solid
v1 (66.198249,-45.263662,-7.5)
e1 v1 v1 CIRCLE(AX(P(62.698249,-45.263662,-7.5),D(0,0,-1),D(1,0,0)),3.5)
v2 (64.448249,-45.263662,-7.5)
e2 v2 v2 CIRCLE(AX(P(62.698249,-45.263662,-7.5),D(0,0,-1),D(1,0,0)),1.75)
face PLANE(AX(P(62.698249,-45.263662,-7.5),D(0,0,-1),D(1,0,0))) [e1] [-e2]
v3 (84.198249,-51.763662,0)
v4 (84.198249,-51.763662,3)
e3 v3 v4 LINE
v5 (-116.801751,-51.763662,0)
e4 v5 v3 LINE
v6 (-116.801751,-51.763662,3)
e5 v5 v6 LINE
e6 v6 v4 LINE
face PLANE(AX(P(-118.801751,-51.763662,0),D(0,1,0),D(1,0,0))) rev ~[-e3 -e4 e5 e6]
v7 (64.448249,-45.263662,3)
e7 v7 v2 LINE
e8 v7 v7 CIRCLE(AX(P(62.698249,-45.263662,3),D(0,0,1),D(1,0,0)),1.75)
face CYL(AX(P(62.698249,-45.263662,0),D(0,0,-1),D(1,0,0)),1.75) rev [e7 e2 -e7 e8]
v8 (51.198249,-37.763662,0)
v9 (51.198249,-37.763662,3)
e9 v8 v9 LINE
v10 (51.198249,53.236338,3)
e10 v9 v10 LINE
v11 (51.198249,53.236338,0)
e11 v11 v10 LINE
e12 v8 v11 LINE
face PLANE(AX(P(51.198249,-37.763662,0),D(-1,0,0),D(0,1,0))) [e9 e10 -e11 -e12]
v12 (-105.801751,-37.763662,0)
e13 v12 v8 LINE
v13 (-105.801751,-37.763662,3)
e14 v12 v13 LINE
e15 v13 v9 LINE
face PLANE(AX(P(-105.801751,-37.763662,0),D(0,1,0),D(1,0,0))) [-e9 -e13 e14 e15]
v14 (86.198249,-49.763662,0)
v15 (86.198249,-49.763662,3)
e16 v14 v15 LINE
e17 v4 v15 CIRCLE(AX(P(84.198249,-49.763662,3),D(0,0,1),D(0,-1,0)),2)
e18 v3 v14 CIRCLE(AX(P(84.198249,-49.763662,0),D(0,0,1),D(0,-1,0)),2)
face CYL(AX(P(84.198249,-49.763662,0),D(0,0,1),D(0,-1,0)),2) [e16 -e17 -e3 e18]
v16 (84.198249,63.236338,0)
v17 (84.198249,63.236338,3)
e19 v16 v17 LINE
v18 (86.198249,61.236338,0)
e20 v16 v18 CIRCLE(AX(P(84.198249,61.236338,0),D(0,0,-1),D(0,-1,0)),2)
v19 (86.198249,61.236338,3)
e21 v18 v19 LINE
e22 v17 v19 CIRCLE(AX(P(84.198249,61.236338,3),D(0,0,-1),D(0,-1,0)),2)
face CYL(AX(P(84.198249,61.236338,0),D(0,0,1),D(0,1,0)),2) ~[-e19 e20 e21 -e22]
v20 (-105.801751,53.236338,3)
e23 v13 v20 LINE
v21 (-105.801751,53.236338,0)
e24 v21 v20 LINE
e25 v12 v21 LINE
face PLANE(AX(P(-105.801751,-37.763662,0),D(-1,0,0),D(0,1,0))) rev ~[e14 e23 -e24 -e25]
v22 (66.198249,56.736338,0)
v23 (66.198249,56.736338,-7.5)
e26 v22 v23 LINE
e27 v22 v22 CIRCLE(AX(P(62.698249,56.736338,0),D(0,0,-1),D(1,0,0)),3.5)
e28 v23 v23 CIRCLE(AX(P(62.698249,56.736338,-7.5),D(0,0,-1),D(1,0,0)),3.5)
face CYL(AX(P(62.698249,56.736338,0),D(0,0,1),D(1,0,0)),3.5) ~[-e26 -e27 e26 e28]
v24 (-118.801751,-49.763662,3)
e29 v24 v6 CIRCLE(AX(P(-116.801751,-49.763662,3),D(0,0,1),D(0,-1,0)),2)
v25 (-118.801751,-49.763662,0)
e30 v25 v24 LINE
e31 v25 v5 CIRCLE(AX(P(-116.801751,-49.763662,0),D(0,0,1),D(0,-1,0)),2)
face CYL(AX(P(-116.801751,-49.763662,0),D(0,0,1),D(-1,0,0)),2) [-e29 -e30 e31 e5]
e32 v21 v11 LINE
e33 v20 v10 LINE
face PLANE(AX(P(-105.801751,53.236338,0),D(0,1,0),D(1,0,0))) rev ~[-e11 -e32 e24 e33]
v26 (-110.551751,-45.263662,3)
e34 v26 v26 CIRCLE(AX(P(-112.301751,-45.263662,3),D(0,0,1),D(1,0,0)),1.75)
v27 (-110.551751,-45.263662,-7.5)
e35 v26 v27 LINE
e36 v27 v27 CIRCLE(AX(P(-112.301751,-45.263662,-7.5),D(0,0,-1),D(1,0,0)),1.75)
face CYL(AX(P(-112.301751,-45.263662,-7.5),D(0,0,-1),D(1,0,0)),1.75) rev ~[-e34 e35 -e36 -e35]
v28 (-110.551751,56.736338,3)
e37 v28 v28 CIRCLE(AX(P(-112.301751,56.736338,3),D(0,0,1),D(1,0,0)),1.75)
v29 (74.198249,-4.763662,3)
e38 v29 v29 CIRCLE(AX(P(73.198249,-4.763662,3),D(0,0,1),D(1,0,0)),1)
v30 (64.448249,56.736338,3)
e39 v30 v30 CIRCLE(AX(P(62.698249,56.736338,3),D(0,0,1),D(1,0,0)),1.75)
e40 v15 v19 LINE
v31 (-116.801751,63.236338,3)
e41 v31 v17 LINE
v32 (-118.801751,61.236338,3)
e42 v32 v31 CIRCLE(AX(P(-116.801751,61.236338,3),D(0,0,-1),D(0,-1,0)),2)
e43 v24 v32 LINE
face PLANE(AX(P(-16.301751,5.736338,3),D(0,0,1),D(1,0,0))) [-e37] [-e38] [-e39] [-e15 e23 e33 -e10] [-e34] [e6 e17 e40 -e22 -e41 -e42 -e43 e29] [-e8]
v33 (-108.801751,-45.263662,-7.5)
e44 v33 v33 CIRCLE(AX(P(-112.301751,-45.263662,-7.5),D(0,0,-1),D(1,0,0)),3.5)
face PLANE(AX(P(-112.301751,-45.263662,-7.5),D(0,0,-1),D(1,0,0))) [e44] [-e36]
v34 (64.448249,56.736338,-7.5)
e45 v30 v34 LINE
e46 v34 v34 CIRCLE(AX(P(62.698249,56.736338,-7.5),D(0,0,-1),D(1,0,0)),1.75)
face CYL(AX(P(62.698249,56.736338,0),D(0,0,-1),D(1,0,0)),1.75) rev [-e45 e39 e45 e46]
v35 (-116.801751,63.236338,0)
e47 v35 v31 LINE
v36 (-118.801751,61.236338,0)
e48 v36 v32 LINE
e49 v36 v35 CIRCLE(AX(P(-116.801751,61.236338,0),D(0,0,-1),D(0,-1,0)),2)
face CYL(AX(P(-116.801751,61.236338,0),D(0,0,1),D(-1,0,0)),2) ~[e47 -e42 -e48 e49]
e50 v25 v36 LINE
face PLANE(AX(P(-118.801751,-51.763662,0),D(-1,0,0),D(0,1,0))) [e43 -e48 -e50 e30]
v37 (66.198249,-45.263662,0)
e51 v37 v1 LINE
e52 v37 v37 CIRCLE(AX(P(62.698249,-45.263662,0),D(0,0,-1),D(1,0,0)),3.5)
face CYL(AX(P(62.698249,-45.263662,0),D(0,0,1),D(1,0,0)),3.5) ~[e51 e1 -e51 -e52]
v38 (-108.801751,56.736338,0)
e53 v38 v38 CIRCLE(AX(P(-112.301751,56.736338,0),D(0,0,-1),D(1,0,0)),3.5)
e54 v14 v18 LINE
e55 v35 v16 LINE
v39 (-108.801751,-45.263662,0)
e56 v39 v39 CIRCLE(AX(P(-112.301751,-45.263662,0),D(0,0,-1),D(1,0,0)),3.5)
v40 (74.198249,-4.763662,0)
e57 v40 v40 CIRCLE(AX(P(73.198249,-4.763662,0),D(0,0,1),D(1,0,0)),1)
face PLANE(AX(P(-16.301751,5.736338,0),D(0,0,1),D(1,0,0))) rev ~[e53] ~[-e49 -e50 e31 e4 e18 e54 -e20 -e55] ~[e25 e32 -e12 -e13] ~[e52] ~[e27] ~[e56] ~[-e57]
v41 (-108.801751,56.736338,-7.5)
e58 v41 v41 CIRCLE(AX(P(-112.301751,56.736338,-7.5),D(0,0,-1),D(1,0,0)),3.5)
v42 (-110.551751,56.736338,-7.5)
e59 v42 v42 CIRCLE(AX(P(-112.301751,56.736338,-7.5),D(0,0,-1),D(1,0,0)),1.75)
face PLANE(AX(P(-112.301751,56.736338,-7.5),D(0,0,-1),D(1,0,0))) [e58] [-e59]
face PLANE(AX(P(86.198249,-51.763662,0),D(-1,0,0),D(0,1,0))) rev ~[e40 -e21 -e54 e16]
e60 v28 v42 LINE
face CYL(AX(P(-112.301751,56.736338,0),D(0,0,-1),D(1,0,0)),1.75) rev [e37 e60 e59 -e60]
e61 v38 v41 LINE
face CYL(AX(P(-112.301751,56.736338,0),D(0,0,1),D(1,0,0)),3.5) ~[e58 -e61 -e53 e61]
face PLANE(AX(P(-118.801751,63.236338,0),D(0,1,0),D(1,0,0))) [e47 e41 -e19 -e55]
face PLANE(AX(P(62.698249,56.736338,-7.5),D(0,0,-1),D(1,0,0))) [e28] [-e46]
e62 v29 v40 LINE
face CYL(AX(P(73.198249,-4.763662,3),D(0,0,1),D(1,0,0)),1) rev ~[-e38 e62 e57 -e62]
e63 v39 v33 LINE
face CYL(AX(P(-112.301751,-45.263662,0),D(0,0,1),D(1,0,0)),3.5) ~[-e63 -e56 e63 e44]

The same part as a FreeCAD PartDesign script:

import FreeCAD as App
import Part
import Sketcher
from FreeCAD import Vector
Q = App.Units.Quantity


def edges_at(feature, points):
    """Names of the edges that pass closest to the given points."""
    edges = feature.Shape.Edges
    near = lambda p: min(range(len(edges)), key=lambda i: edges[i].distToShape(Part.Vertex(*p))[0])
    return sorted({f"Edge{near(p) + 1}" for p in points})

doc = App.newDocument("Part")
body = doc.addObject("PartDesign::Body", "Body")

# Sketch on XY plane
sketch1 = body.newObject("Sketcher::SketchObject", "Sketch")
sketch1.AttachmentSupport = (doc.getObject("XY_Plane"), [""])
sketch1.MapMode = "FlatFace"
sketch1.addGeometry([
    Part.LineSegment(Vector(-118.801751, 63.236338, 0), Vector(-118.801751, -51.763662, 0)),  # 0
    Part.LineSegment(Vector(-118.801751, -51.763662, 0), Vector(86.198249, -51.763662, 0)),  # 1
    Part.LineSegment(Vector(86.198249, -51.763662, 0), Vector(86.198249, 63.236338, 0)),  # 2
    Part.LineSegment(Vector(86.198249, 63.236338, 0), Vector(-118.801751, 63.236338, 0)),  # 3
    Part.Circle(Vector(-112.301751, -45.263662, 0), Vector(0, 0, 1), 1.75),  # 4
    Part.Circle(Vector(62.698249, -45.263662, 0), Vector(0, 0, 1), 1.75),  # 5
    Part.LineSegment(Vector(51.198249, -37.763662, 0), Vector(-105.801751, -37.763662, 0)),  # 6
    Part.LineSegment(Vector(-105.801751, -37.763662, 0), Vector(-105.801751, 53.236338, 0)),  # 7
    Part.LineSegment(Vector(-105.801751, 53.236338, 0), Vector(51.198249, 53.236338, 0)),  # 8
    Part.LineSegment(Vector(51.198249, 53.236338, 0), Vector(51.198249, -37.763662, 0)),  # 9
    Part.Circle(Vector(-112.301751, 56.736338, 0), Vector(0, 0, 1), 1.75),  # 10
    Part.Circle(Vector(62.698249, 56.736338, 0), Vector(0, 0, 1), 1.75),  # 11
], False)
sketch1.addConstraint([
    Sketcher.Constraint("Coincident", 0, 2, 1, 1),
    Sketcher.Constraint("Coincident", 1, 2, 2, 1),
    Sketcher.Constraint("Coincident", 2, 2, 3, 1),
    Sketcher.Constraint("Coincident", 3, 2, 0, 1),
    Sketcher.Constraint("Coincident", 6, 2, 7, 1),
    Sketcher.Constraint("Coincident", 7, 2, 8, 1),
    Sketcher.Constraint("Coincident", 8, 2, 9, 1),
    Sketcher.Constraint("Coincident", 9, 2, 6, 1),
    Sketcher.Constraint("Vertical", 0),
    Sketcher.Constraint("Horizontal", 1),
    Sketcher.Constraint("Vertical", 2),
    Sketcher.Constraint("Horizontal", 3),
    Sketcher.Constraint("Horizontal", 6),
    Sketcher.Constraint("Vertical", 7),
    Sketcher.Constraint("Horizontal", 8),
    Sketcher.Constraint("Vertical", 9),
    Sketcher.Constraint("Equal", 4, 5),
    Sketcher.Constraint("Equal", 5, 10),
    Sketcher.Constraint("Equal", 10, 11),
    Sketcher.Constraint("Horizontal", 4, 3, 5, 3),
    Sketcher.Constraint("Horizontal", 10, 3, 11, 3),
    Sketcher.Constraint("Vertical", 4, 3, 10, 3),
    Sketcher.Constraint("Vertical", 5, 3, 11, 3),
    Sketcher.Constraint("Diameter", 4, Q("3.5 mm")),
    Sketcher.Constraint("DistanceX", 1, 1, 1, 2, Q("205 mm")),
    Sketcher.Constraint("DistanceX", 6, 2, 6, 1, Q("157 mm")),
    Sketcher.Constraint("DistanceY", 0, 2, 0, 1, Q("115 mm")),
    Sketcher.Constraint("DistanceY", 7, 1, 7, 2, Q("91 mm")),
    Sketcher.Constraint("DistanceX", 4, 3, 5, 3, Q("175 mm")),
    Sketcher.Constraint("DistanceY", 4, 3, 10, 3, Q("102 mm")),
    Sketcher.Constraint("DistanceX", 0, 2, 6, 2, Q("13 mm")),
    Sketcher.Constraint("DistanceY", 0, 2, 6, 2, Q("14 mm")),
    Sketcher.Constraint("DistanceX", 0, 2, 4, 3, Q("6.5 mm")),
    Sketcher.Constraint("DistanceY", 0, 2, 4, 3, Q("6.5 mm")),
    Sketcher.Constraint("DistanceX", 4, 3, -1, 1, Q("112.301751 mm")),
    Sketcher.Constraint("DistanceY", 4, 3, -1, 1, Q("45.263662 mm")),
])
pad1 = body.newObject("PartDesign::Pad", "Pad")
pad1.Profile = sketch1
pad1.Length = 3
doc.recompute()

fillet = body.newObject("PartDesign::Fillet", "Fillet")
fillet.Base = (pad1, edges_at(pad1, [
    (-118.802, -51.764, 1.5),
    (-118.802, 63.236, 1.5),
    (86.198, -51.764, 1.5),
    (86.198, 63.236, 1.5),
]))
fillet.Radius = 2

# Sketch on XY plane
sketch2 = body.newObject("Sketcher::SketchObject", "Sketch001")
sketch2.AttachmentSupport = (doc.getObject("XY_Plane"), [""])
sketch2.MapMode = "FlatFace"
sketch2.addGeometry([
    Part.LineSegment(Vector(-118.801751, 63.236338, 0), Vector(-118.801751, -51.763662, 0)),  # 0
    Part.LineSegment(Vector(-118.801751, -51.763662, 0), Vector(86.198249, -51.763662, 0)),  # 1
    Part.LineSegment(Vector(86.198249, -51.763662, 0), Vector(86.198249, 63.236338, 0)),  # 2
    Part.LineSegment(Vector(86.198249, 63.236338, 0), Vector(-118.801751, 63.236338, 0)),  # 3
    Part.Circle(Vector(-112.301751, -45.263662, 0), Vector(0, 0, 1), 1.75),  # 4
    Part.Circle(Vector(62.698249, -45.263662, 0), Vector(0, 0, 1), 1.75),  # 5
    Part.LineSegment(Vector(51.198249, -37.763662, 0), Vector(-105.801751, -37.763662, 0)),  # 6
    Part.LineSegment(Vector(-105.801751, -37.763662, 0), Vector(-105.801751, 53.236338, 0)),  # 7
    Part.LineSegment(Vector(-105.801751, 53.236338, 0), Vector(51.198249, 53.236338, 0)),  # 8
    Part.LineSegment(Vector(51.198249, 53.236338, 0), Vector(51.198249, -37.763662, 0)),  # 9
    Part.Circle(Vector(-112.301751, 56.736338, 0), Vector(0, 0, 1), 1.75),  # 10
    Part.Circle(Vector(62.698249, 56.736338, 0), Vector(0, 0, 1), 1.75),  # 11
], False)
sketch2.addConstraint([
    Sketcher.Constraint("Coincident", 0, 2, 1, 1),
    Sketcher.Constraint("Coincident", 1, 2, 2, 1),
    Sketcher.Constraint("Coincident", 2, 2, 3, 1),
    Sketcher.Constraint("Coincident", 3, 2, 0, 1),
    Sketcher.Constraint("Coincident", 6, 2, 7, 1),
    Sketcher.Constraint("Coincident", 7, 2, 8, 1),
    Sketcher.Constraint("Coincident", 8, 2, 9, 1),
    Sketcher.Constraint("Coincident", 9, 2, 6, 1),
    Sketcher.Constraint("Vertical", 0),
    Sketcher.Constraint("Horizontal", 1),
    Sketcher.Constraint("Vertical", 2),
    Sketcher.Constraint("Horizontal", 3),
    Sketcher.Constraint("Horizontal", 6),
    Sketcher.Constraint("Vertical", 7),
    Sketcher.Constraint("Horizontal", 8),
    Sketcher.Constraint("Vertical", 9),
    Sketcher.Constraint("Equal", 4, 5),
    Sketcher.Constraint("Equal", 5, 10),
    Sketcher.Constraint("Equal", 10, 11),
    Sketcher.Constraint("Horizontal", 4, 3, 5, 3),
    Sketcher.Constraint("Horizontal", 10, 3, 11, 3),
    Sketcher.Constraint("Vertical", 4, 3, 10, 3),
    Sketcher.Constraint("Vertical", 5, 3, 11, 3),
    Sketcher.Constraint("Diameter", 4, Q("3.5 mm")),
    Sketcher.Constraint("DistanceX", 1, 1, 1, 2, Q("205 mm")),
    Sketcher.Constraint("DistanceX", 6, 2, 6, 1, Q("157 mm")),
    Sketcher.Constraint("DistanceY", 0, 2, 0, 1, Q("115 mm")),
    Sketcher.Constraint("DistanceY", 7, 1, 7, 2, Q("91 mm")),
    Sketcher.Constraint("DistanceX", 4, 3, 5, 3, Q("175 mm")),
    Sketcher.Constraint("DistanceY", 4, 3, 10, 3, Q("102 mm")),
    Sketcher.Constraint("DistanceX", 0, 2, 6, 2, Q("13 mm")),
    Sketcher.Constraint("DistanceY", 0, 2, 6, 2, Q("14 mm")),
    Sketcher.Constraint("DistanceX", 0, 2, 4, 3, Q("6.5 mm")),
    Sketcher.Constraint("DistanceY", 0, 2, 4, 3, Q("6.5 mm")),
    Sketcher.Constraint("DistanceX", 4, 3, -1, 1, Q("112.301751 mm")),
    Sketcher.Constraint("DistanceY", 4, 3, -1, 1, Q("45.263662 mm")),
])
pocket1 = body.newObject("PartDesign::Pocket", "Pocket")
pocket1.Profile = sketch2
pocket1.Length = 25

# Sketch on XY plane
sketch3 = body.newObject("Sketcher::SketchObject", "Sketch002")
sketch3.AttachmentSupport = (doc.getObject("XY_Plane"), [""])
sketch3.MapMode = "FlatFace"
sketch3.AttachmentOffset = App.Placement(Vector(0, 0, 3), App.Rotation())
sketch3.addGeometry(Part.Circle(Vector(73.198249, -4.763662, 0), Vector(0, 0, 1), 1), False)
sketch3.addConstraint([
    Sketcher.Constraint("Diameter", 0, Q("2 mm")),
    Sketcher.Constraint("DistanceX", -1, 1, 0, 3, Q("73.198249 mm")),
    Sketcher.Constraint("DistanceY", 0, 3, -1, 1, Q("4.763662 mm")),
])
pocket2 = body.newObject("PartDesign::Pocket", "Pocket001")
pocket2.Profile = sketch3
pocket2.Length = 25

# Sketch on XY plane
sketch4 = body.newObject("Sketcher::SketchObject", "Sketch003")
sketch4.AttachmentSupport = (doc.getObject("XY_Plane"), [""])
sketch4.MapMode = "FlatFace"
sketch4.addGeometry([
    Part.Circle(Vector(-112.301751, -45.263662, 0), Vector(0, 0, 1), 3.5),
    Part.Circle(Vector(-112.301751, 56.736338, 0), Vector(0, 0, 1), 3.5),
    Part.Circle(Vector(62.698249, -45.263662, 0), Vector(0, 0, 1), 3.5),
    Part.Circle(Vector(62.698249, 56.736338, 0), Vector(0, 0, 1), 3.5),
], False)
sketch4.addConstraint([
    Sketcher.Constraint("Equal", 0, 1),
    Sketcher.Constraint("Equal", 1, 2),
    Sketcher.Constraint("Equal", 2, 3),
    Sketcher.Constraint("Horizontal", 0, 3, 2, 3),
    Sketcher.Constraint("Horizontal", 1, 3, 3, 3),
    Sketcher.Constraint("Vertical", 0, 3, 1, 3),
    Sketcher.Constraint("Vertical", 2, 3, 3, 3),
    Sketcher.Constraint("Diameter", 0, Q("7 mm")),
    Sketcher.Constraint("DistanceY", 0, 3, 1, 3, Q("102 mm")),
    Sketcher.Constraint("DistanceX", 0, 3, 2, 3, Q("175 mm")),
    Sketcher.Constraint("DistanceX", 0, 3, -1, 1, Q("112.301751 mm")),
    Sketcher.Constraint("DistanceY", 0, 3, -1, 1, Q("45.263662 mm")),
])
pad2 = body.newObject("PartDesign::Pad", "Pad001")
pad2.Profile = sketch4
pad2.Length = 7.5
pad2.Reversed = True

# Sketch on XY plane
sketch5 = body.newObject("Sketcher::SketchObject", "Sketch004")
sketch5.AttachmentSupport = (doc.getObject("XY_Plane"), [""])
sketch5.MapMode = "FlatFace"
sketch5.AttachmentOffset = App.Placement(Vector(0, 0, -7.5), App.Rotation())
sketch5.addGeometry(Part.Circle(Vector(-112.301751, -45.263662, 0), Vector(0, 0, 1), 1.75), False)
sketch5.addConstraint([
    Sketcher.Constraint("Diameter", 0, Q("3.5 mm")),
    Sketcher.Constraint("DistanceX", 0, 3, -1, 1, Q("112.301751 mm")),
    Sketcher.Constraint("DistanceY", 0, 3, -1, 1, Q("45.263662 mm")),
])
pocket3 = body.newObject("PartDesign::Pocket", "Pocket002")
pocket3.Profile = sketch5
pocket3.Length = 25
pocket3.Reversed = True

# Sketch on XY plane
sketch6 = body.newObject("Sketcher::SketchObject", "Sketch005")
sketch6.AttachmentSupport = (doc.getObject("XY_Plane"), [""])
sketch6.MapMode = "FlatFace"
sketch6.AttachmentOffset = App.Placement(Vector(0, 0, -7.5), App.Rotation())
sketch6.addGeometry(Part.Circle(Vector(-112.301751, 56.736338, 0), Vector(0, 0, 1), 1.75), False)
sketch6.addConstraint([
    Sketcher.Constraint("Diameter", 0, Q("3.5 mm")),
    Sketcher.Constraint("DistanceX", 0, 3, -1, 1, Q("112.301751 mm")),
    Sketcher.Constraint("DistanceY", -1, 1, 0, 3, Q("56.736338 mm")),
])
pocket4 = body.newObject("PartDesign::Pocket", "Pocket003")
pocket4.Profile = sketch6
pocket4.Length = 25
pocket4.Reversed = True

# Sketch on XY plane
sketch7 = body.newObject("Sketcher::SketchObject", "Sketch006")
sketch7.AttachmentSupport = (doc.getObject("XY_Plane"), [""])
sketch7.MapMode = "FlatFace"
sketch7.AttachmentOffset = App.Placement(Vector(0, 0, -7.5), App.Rotation())
sketch7.addGeometry(Part.Circle(Vector(62.698249, 56.736338, 0), Vector(0, 0, 1), 1.75), False)
sketch7.addConstraint([
    Sketcher.Constraint("Diameter", 0, Q("3.5 mm")),
    Sketcher.Constraint("DistanceX", -1, 1, 0, 3, Q("62.698249 mm")),
    Sketcher.Constraint("DistanceY", -1, 1, 0, 3, Q("56.736338 mm")),
])
pocket5 = body.newObject("PartDesign::Pocket", "Pocket004")
pocket5.Profile = sketch7
pocket5.Length = 25
pocket5.Reversed = True

# Sketch on XY plane
sketch8 = body.newObject("Sketcher::SketchObject", "Sketch007")
sketch8.AttachmentSupport = (doc.getObject("XY_Plane"), [""])
sketch8.MapMode = "FlatFace"
sketch8.AttachmentOffset = App.Placement(Vector(0, 0, -7.5), App.Rotation())
sketch8.addGeometry(Part.Circle(Vector(62.698249, -45.263662, 0), Vector(0, 0, 1), 1.75), False)
sketch8.addConstraint([
    Sketcher.Constraint("Diameter", 0, Q("3.5 mm")),
    Sketcher.Constraint("DistanceX", -1, 1, 0, 3, Q("62.698249 mm")),
    Sketcher.Constraint("DistanceY", 0, 3, -1, 1, Q("45.263662 mm")),
])
pocket6 = body.newObject("PartDesign::Pocket", "Pocket005")
pocket6.Profile = sketch8
pocket6.Length = 25
pocket6.Reversed = True

doc.recompute()
